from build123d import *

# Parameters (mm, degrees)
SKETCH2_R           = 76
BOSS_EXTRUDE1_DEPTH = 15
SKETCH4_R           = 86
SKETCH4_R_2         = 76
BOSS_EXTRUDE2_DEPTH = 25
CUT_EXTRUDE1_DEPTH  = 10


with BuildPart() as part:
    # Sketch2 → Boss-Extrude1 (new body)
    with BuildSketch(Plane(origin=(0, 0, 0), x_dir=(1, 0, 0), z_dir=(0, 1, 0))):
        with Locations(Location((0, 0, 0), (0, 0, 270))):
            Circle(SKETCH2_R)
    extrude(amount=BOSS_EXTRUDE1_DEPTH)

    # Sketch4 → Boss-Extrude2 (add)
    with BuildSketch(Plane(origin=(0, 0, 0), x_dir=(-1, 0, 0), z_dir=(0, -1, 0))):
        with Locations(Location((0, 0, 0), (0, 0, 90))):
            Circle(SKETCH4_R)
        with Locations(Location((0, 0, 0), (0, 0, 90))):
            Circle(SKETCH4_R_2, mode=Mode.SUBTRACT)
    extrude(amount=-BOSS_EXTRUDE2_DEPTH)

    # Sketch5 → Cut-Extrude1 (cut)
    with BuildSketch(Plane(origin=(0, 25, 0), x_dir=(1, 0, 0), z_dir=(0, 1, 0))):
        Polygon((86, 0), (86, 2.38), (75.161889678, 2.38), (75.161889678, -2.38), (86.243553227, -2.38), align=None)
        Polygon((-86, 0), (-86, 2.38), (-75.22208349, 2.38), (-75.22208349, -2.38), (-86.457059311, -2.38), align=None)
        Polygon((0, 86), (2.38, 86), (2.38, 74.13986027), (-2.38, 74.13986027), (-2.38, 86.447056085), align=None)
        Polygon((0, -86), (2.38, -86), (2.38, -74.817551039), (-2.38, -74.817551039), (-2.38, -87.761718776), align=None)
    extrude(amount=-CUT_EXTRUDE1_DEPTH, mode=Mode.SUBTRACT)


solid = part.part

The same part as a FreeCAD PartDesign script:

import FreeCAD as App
import Part
import Sketcher
from FreeCAD import Vector

doc = App.newDocument("Part")
body = doc.addObject("PartDesign::Body", "Body")

sketch1 = body.newObject("Sketcher::SketchObject", "Sketch")
sketch1.AttachmentSupport = (doc.getObject("XZ_Plane"), [""])
sketch1.MapMode = "FlatFace"
sketch1.addGeometry(Part.Circle(Vector(0, 0, 0), Vector(0, 0, 1), 76), False)
sketch1.addConstraint([
    Sketcher.Constraint("Coincident", 0, 3, -1, 1),
    Sketcher.Constraint("Diameter", 0, 152.0),
])
pad1 = body.newObject("PartDesign::Pad", "Pad")
pad1.Profile = sketch1
pad1.Length = 15
pad1.Reversed = True

sketch2 = body.newObject("Sketcher::SketchObject", "Sketch001")
sketch2.AttachmentSupport = (doc.getObject("XZ_Plane"), [""])
sketch2.MapMode = "FlatFace"
sketch2.addGeometry([
    Part.Circle(Vector(0, 0, 0), Vector(0, 0, 1), 86),
    Part.Circle(Vector(0, 0, 0), Vector(0, 0, 1), 76),
], False)
sketch2.addConstraint([
    Sketcher.Constraint("Coincident", 0, 3, -1, 1),
    Sketcher.Constraint("Coincident", 1, 3, -1, 1),
    Sketcher.Constraint("Diameter", 0, 172.0),
    Sketcher.Constraint("Diameter", 1, 152.0),
])
pad2 = body.newObject("PartDesign::Pad", "Pad001")
pad2.Profile = sketch2
pad2.Length = 25
pad2.Reversed = True

sketch3 = body.newObject("Sketcher::SketchObject", "Sketch002")
sketch3.AttachmentSupport = (doc.getObject("XZ_Plane"), [""])
sketch3.MapMode = "FlatFace"
sketch3.AttachmentOffset = App.Placement(Vector(0, 0, -25), App.Rotation())
sketch3.addGeometry([
    Part.LineSegment(Vector(86, 0, 0), Vector(86, -2.4, 0)),
    Part.LineSegment(Vector(86, -2.4, 0), Vector(75.2, -2.4, 0)),
    Part.LineSegment(Vector(75.2, -2.4, 0), Vector(75.2, 2.4, 0)),
    Part.LineSegment(Vector(75.2, 2.4, 0), Vector(86.2, 2.4, 0)),
    Part.LineSegment(Vector(86.2, 2.4, 0), Vector(86, 0, 0)),
    Part.LineSegment(Vector(-86, -2.4, 0), Vector(-86, 0, 0)),
    Part.LineSegment(Vector(-86, 0, 0), Vector(-86.5, 2.4, 0)),
    Part.LineSegment(Vector(-86.5, 2.4, 0), Vector(-75.2, 2.4, 0)),
    Part.LineSegment(Vector(-75.2, 2.4, 0), Vector(-75.2, -2.4, 0)),
    Part.LineSegment(Vector(-75.2, -2.4, 0), Vector(-86, -2.4, 0)),
    Part.LineSegment(Vector(2.4, -86, 0), Vector(0, -86, 0)),
    Part.LineSegment(Vector(0, -86, 0), Vector(-2.4, -86.4, 0)),
    Part.LineSegment(Vector(-2.4, -86.4, 0), Vector(-2.4, -74.1, 0)),
    Part.LineSegment(Vector(-2.4, -74.1, 0), Vector(2.4, -74.1, 0)),
    Part.LineSegment(Vector(2.4, -74.1, 0), Vector(2.4, -86, 0)),
    Part.LineSegment(Vector(0, 86, 0), Vector(2.4, 86, 0)),
    Part.LineSegment(Vector(2.4, 86, 0), Vector(2.4, 74.8, 0)),
    Part.LineSegment(Vector(2.4, 74.8, 0), Vector(-2.4, 74.8, 0)),
    Part.LineSegment(Vector(-2.4, 74.8, 0), Vector(-2.4, 87.8, 0)),
    Part.LineSegment(Vector(-2.4, 87.8, 0), Vector(0, 86, 0)),
], False)
sketch3.addConstraint([
    Sketcher.Constraint("Coincident", 0, 2, 1, 1),
    Sketcher.Constraint("Coincident", 1, 2, 2, 1),
    Sketcher.Constraint("Coincident", 2, 2, 3, 1),
    Sketcher.Constraint("Coincident", 3, 2, 4, 1),
    Sketcher.Constraint("Coincident", 4, 2, 0, 1),
    Sketcher.Constraint("Coincident", 5, 2, 6, 1),
    Sketcher.Constraint("Coincident", 6, 2, 7, 1),
    Sketcher.Constraint("Coincident", 7, 2, 8, 1),
    Sketcher.Constraint("Coincident", 8, 2, 9, 1),
    Sketcher.Constraint("Coincident", 9, 2, 5, 1),
    Sketcher.Constraint("Coincident", 10, 2, 11, 1),
    Sketcher.Constraint("Coincident", 11, 2, 12, 1),
    Sketcher.Constraint("Coincident", 12, 2, 13, 1),
    Sketcher.Constraint("Coincident", 13, 2, 14, 1),
    Sketcher.Constraint("Coincident", 14, 2, 10, 1),
    Sketcher.Constraint("Coincident", 15, 2, 16, 1),
    Sketcher.Constraint("Coincident", 16, 2, 17, 1),
    Sketcher.Constraint("Coincident", 17, 2, 18, 1),
    Sketcher.Constraint("Coincident", 18, 2, 19, 1),
    Sketcher.Constraint("Coincident", 19, 2, 15, 1),
    Sketcher.Constraint("Vertical", 0),
    Sketcher.Constraint("Horizontal", 1),
    Sketcher.Constraint("Vertical", 2),
    Sketcher.Constraint("Horizontal", 3),
    Sketcher.Constraint("Vertical", 5),
    Sketcher.Constraint("Horizontal", 7),
    Sketcher.Constraint("Vertical", 8),
    Sketcher.Constraint("Horizontal", 9),
    Sketcher.Constraint("Horizontal", 10),
    Sketcher.Constraint("Vertical", 12),
    Sketcher.Constraint("Horizontal", 13),
    Sketcher.Constraint("Vertical", 14),
    Sketcher.Constraint("Horizontal", 15),
    Sketcher.Constraint("Vertical", 16),
    Sketcher.Constraint("Horizontal", 17),
    Sketcher.Constraint("Vertical", 18),
    Sketcher.Constraint("Symmetric", 4, 2, 5, 2, -1, 1),
    Sketcher.Constraint("Symmetric", 10, 2, 19, 2, -1, 1),
    Sketcher.Constraint("PointOnObject", 4, 2, -1),
    Sketcher.Constraint("PointOnObject", 10, 2, -2),
    Sketcher.Constraint("Horizontal", 3, 2, 6, 2),
    Sketcher.Constraint("Horizontal", 1, 2, 8, 2),
    Sketcher.Constraint("Vertical", 14, 2, 15, 2),
    Sketcher.Constraint("Vertical", 12, 2, 17, 2),
    Sketcher.Constraint("Equal", 15, 0),
    Sketcher.Constraint("Equal", 17, 2),
    Sketcher.Constraint("DistanceX", -1, 1, 0, 2, 86.0),
    Sketcher.Constraint("DistanceY", 10, 2, -1, 1, 86.0),
    Sketcher.Constraint("DistanceX", 10, 2, 10, 1, 2.38),
    Sketcher.Constraint("DistanceX", 13, 1, 13, 2, 4.76),
    Sketcher.Constraint("DistanceX", 1, 2, 1, 1, 10.83811),
    Sketcher.Constraint("DistanceY", 14, 2, 14, 1, 11.86014),
    Sketcher.Constraint("DistanceY", 16, 2, 16, 1, 11.182449),
    Sketcher.Constraint("Distance", 4, 2.392429),
    Sketcher.Constraint("Distance", 6, 2.42349),
    Sketcher.Constraint("Distance", 19, 2.96109),
    Sketcher.Constraint("DistanceX", 7, 1, 7, 2, 11.234976),
    Sketcher.Constraint("DistanceY", 12, 1, 12, 2, 12.307196),
])
pocket1 = body.newObject("PartDesign::Pocket", "Pocket")
pocket1.Profile = sketch3
pocket1.Length = 10
pocket1.Reversed = True

doc.recompute()
